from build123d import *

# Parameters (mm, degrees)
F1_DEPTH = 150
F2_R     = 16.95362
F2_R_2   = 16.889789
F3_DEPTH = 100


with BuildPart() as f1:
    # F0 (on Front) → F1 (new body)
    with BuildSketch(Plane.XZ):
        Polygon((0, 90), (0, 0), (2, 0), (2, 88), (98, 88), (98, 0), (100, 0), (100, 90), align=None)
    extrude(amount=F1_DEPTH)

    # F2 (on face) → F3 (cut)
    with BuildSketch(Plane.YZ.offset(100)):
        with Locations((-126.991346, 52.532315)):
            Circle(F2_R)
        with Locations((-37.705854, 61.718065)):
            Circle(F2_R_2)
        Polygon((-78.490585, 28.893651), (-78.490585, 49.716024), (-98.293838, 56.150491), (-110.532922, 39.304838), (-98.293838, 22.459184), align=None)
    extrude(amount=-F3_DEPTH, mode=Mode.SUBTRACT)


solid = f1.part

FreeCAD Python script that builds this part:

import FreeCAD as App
import Part
import Sketcher

V = App.Vector
Q = App.Units.Quantity

doc = App.newDocument("Part")
body = doc.addObject("PartDesign::Body", "Body")

# Sketch on XZ plane
sketch1 = body.newObject("Sketcher::SketchObject", "Sketch")
sketch1.AttachmentSupport = (doc.getObject("XZ_Plane"), [""])
sketch1.MapMode = "FlatFace"
sketch1.addGeometry(Part.LineSegment(V(0, 90, 0), V(0, 0, 0)), False)
sketch1.addGeometry(Part.LineSegment(V(0, 0, 0), V(2, 0, 0)), False)
sketch1.addGeometry(Part.LineSegment(V(2, 0, 0), V(2, 88, 0)), False)
sketch1.addGeometry(Part.LineSegment(V(2, 88, 0), V(98, 88, 0)), False)
sketch1.addGeometry(Part.LineSegment(V(98, 88, 0), V(98, 0, 0)), False)
sketch1.addGeometry(Part.LineSegment(V(98, 0, 0), V(100, 0, 0)), False)
sketch1.addGeometry(Part.LineSegment(V(100, 0, 0), V(100, 90, 0)), False)
sketch1.addGeometry(Part.LineSegment(V(100, 90, 0), V(0, 90, 0)), False)
sketch1.addConstraint(Sketcher.Constraint("Coincident", 0, 2, 1, 1))
sketch1.addConstraint(Sketcher.Constraint("Coincident", 1, 2, 2, 1))
sketch1.addConstraint(Sketcher.Constraint("Coincident", 2, 2, 3, 1))
sketch1.addConstraint(Sketcher.Constraint("Coincident", 3, 2, 4, 1))
sketch1.addConstraint(Sketcher.Constraint("Coincident", 4, 2, 5, 1))
sketch1.addConstraint(Sketcher.Constraint("Coincident", 5, 2, 6, 1))
sketch1.addConstraint(Sketcher.Constraint("Coincident", 6, 2, 7, 1))
sketch1.addConstraint(Sketcher.Constraint("Coincident", 7, 2, 0, 1))
sketch1.addConstraint(Sketcher.Constraint("Vertical", 0))
sketch1.addConstraint(Sketcher.Constraint("Horizontal", 1))
sketch1.addConstraint(Sketcher.Constraint("Vertical", 2))
sketch1.addConstraint(Sketcher.Constraint("Horizontal", 3))
sketch1.addConstraint(Sketcher.Constraint("Vertical", 4))
sketch1.addConstraint(Sketcher.Constraint("Horizontal", 5))
sketch1.addConstraint(Sketcher.Constraint("Vertical", 6))
sketch1.addConstraint(Sketcher.Constraint("Horizontal", 7))
sketch1.addConstraint(Sketcher.Constraint("Coincident", 0, 2, -1, 1))
sketch1.addConstraint(Sketcher.Constraint("PointOnObject", 4, 2, -1))
sketch1.addConstraint(Sketcher.Constraint("Equal", 1, 5))
sketch1.addConstraint(Sketcher.Constraint("DistanceX", 1, 1, 1, 2, 2.0))
sketch1.addConstraint(Sketcher.Constraint("DistanceX", 3, 1, 3, 2, 96.0))
sketch1.addConstraint(Sketcher.Constraint("DistanceY", 0, 2, 0, 1, 90.0))
sketch1.addConstraint(Sketcher.Constraint("DistanceY", 2, 1, 2, 2, 88.0))
pad1 = body.newObject("PartDesign::Pad", "Pad")
pad1.Profile = sketch1
pad1.Length = 150

# Sketch on YZ plane
sketch2 = body.newObject("Sketcher::SketchObject", "Sketch001")
sketch2.AttachmentSupport = (doc.getObject("YZ_Plane"), [""])
sketch2.MapMode = "FlatFace"
sketch2.AttachmentOffset = App.Placement(V(0, 0, 100), App.Rotation())
sketch2.addGeometry(Part.Circle(V(-127, 53, 0), V(0, 0, 1), 17), False)
sketch2.addGeometry(Part.Circle(V(-38, 62, 0), V(0, 0, 1), 17), False)
sketch2.addGeometry(Part.LineSegment(V(-78, 29, 0), V(-78, 50, 0)), False)
sketch2.addGeometry(Part.LineSegment(V(-78, 50, 0), V(-98, 56, 0)), False)
sketch2.addGeometry(Part.LineSegment(V(-98, 56, 0), V(-111, 39, 0)), False)
sketch2.addGeometry(Part.LineSegment(V(-111, 39, 0), V(-98, 22, 0)), False)
sketch2.addGeometry(Part.LineSegment(V(-98, 22, 0), V(-78, 29, 0)), False)
sketch2.addConstraint(Sketcher.Constraint("Coincident", 2, 2, 3, 1))
sketch2.addConstraint(Sketcher.Constraint("Coincident", 3, 2, 4, 1))
sketch2.addConstraint(Sketcher.Constraint("Coincident", 4, 2, 5, 1))
sketch2.addConstraint(Sketcher.Constraint("Coincident", 5, 2, 6, 1))
sketch2.addConstraint(Sketcher.Constraint("Coincident", 6, 2, 2, 1))
sketch2.addConstraint(Sketcher.Constraint("Vertical", 2))
sketch2.addConstraint(Sketcher.Constraint("Vertical", 3, 2, 5, 2))
sketch2.addConstraint(Sketcher.Constraint("Equal", 3, 4))
sketch2.addConstraint(Sketcher.Constraint("Equal", 4, 5))
sketch2.addConstraint(Sketcher.Constraint("Equal", 5, 6))
sketch2.addConstraint(Sketcher.Constraint("Angle", 3, Q("162 deg")))
sketch2.addConstraint(Sketcher.Constraint("Angle", 4, Q("-126.000002 deg")))
sketch2.addConstraint(Sketcher.Constraint("Diameter", 0, 33.90724))
sketch2.addConstraint(Sketcher.Constraint("Diameter", 1, 33.779578))
sketch2.addConstraint(Sketcher.Constraint("DistanceY", 2, 1, 2, 2, 20.822373))
sketch2.addConstraint(Sketcher.Constraint("DistanceY", -1, 1, 3, 2, 56.150491))
sketch2.addConstraint(Sketcher.Constraint("DistanceX", 4, 2, -1, 1, 110.532922))
sketch2.addConstraint(Sketcher.Constraint("DistanceX", 0, 3, 1, 3, 89.285492))
sketch2.addConstraint(Sketcher.Constraint("DistanceY", 0, 3, 1, 3, 9.18575))
sketch2.addConstraint(Sketcher.Constraint("DistanceX", 2, 2, 1, 3, 40.784731))
sketch2.addConstraint(Sketcher.Constraint("DistanceY", 2, 2, 1, 3, 12.002041))
pocket1 = body.newObject("PartDesign::Pocket", "Pocket")
pocket1.Profile = sketch2
pocket1.Length = 100

doc.recompute()
